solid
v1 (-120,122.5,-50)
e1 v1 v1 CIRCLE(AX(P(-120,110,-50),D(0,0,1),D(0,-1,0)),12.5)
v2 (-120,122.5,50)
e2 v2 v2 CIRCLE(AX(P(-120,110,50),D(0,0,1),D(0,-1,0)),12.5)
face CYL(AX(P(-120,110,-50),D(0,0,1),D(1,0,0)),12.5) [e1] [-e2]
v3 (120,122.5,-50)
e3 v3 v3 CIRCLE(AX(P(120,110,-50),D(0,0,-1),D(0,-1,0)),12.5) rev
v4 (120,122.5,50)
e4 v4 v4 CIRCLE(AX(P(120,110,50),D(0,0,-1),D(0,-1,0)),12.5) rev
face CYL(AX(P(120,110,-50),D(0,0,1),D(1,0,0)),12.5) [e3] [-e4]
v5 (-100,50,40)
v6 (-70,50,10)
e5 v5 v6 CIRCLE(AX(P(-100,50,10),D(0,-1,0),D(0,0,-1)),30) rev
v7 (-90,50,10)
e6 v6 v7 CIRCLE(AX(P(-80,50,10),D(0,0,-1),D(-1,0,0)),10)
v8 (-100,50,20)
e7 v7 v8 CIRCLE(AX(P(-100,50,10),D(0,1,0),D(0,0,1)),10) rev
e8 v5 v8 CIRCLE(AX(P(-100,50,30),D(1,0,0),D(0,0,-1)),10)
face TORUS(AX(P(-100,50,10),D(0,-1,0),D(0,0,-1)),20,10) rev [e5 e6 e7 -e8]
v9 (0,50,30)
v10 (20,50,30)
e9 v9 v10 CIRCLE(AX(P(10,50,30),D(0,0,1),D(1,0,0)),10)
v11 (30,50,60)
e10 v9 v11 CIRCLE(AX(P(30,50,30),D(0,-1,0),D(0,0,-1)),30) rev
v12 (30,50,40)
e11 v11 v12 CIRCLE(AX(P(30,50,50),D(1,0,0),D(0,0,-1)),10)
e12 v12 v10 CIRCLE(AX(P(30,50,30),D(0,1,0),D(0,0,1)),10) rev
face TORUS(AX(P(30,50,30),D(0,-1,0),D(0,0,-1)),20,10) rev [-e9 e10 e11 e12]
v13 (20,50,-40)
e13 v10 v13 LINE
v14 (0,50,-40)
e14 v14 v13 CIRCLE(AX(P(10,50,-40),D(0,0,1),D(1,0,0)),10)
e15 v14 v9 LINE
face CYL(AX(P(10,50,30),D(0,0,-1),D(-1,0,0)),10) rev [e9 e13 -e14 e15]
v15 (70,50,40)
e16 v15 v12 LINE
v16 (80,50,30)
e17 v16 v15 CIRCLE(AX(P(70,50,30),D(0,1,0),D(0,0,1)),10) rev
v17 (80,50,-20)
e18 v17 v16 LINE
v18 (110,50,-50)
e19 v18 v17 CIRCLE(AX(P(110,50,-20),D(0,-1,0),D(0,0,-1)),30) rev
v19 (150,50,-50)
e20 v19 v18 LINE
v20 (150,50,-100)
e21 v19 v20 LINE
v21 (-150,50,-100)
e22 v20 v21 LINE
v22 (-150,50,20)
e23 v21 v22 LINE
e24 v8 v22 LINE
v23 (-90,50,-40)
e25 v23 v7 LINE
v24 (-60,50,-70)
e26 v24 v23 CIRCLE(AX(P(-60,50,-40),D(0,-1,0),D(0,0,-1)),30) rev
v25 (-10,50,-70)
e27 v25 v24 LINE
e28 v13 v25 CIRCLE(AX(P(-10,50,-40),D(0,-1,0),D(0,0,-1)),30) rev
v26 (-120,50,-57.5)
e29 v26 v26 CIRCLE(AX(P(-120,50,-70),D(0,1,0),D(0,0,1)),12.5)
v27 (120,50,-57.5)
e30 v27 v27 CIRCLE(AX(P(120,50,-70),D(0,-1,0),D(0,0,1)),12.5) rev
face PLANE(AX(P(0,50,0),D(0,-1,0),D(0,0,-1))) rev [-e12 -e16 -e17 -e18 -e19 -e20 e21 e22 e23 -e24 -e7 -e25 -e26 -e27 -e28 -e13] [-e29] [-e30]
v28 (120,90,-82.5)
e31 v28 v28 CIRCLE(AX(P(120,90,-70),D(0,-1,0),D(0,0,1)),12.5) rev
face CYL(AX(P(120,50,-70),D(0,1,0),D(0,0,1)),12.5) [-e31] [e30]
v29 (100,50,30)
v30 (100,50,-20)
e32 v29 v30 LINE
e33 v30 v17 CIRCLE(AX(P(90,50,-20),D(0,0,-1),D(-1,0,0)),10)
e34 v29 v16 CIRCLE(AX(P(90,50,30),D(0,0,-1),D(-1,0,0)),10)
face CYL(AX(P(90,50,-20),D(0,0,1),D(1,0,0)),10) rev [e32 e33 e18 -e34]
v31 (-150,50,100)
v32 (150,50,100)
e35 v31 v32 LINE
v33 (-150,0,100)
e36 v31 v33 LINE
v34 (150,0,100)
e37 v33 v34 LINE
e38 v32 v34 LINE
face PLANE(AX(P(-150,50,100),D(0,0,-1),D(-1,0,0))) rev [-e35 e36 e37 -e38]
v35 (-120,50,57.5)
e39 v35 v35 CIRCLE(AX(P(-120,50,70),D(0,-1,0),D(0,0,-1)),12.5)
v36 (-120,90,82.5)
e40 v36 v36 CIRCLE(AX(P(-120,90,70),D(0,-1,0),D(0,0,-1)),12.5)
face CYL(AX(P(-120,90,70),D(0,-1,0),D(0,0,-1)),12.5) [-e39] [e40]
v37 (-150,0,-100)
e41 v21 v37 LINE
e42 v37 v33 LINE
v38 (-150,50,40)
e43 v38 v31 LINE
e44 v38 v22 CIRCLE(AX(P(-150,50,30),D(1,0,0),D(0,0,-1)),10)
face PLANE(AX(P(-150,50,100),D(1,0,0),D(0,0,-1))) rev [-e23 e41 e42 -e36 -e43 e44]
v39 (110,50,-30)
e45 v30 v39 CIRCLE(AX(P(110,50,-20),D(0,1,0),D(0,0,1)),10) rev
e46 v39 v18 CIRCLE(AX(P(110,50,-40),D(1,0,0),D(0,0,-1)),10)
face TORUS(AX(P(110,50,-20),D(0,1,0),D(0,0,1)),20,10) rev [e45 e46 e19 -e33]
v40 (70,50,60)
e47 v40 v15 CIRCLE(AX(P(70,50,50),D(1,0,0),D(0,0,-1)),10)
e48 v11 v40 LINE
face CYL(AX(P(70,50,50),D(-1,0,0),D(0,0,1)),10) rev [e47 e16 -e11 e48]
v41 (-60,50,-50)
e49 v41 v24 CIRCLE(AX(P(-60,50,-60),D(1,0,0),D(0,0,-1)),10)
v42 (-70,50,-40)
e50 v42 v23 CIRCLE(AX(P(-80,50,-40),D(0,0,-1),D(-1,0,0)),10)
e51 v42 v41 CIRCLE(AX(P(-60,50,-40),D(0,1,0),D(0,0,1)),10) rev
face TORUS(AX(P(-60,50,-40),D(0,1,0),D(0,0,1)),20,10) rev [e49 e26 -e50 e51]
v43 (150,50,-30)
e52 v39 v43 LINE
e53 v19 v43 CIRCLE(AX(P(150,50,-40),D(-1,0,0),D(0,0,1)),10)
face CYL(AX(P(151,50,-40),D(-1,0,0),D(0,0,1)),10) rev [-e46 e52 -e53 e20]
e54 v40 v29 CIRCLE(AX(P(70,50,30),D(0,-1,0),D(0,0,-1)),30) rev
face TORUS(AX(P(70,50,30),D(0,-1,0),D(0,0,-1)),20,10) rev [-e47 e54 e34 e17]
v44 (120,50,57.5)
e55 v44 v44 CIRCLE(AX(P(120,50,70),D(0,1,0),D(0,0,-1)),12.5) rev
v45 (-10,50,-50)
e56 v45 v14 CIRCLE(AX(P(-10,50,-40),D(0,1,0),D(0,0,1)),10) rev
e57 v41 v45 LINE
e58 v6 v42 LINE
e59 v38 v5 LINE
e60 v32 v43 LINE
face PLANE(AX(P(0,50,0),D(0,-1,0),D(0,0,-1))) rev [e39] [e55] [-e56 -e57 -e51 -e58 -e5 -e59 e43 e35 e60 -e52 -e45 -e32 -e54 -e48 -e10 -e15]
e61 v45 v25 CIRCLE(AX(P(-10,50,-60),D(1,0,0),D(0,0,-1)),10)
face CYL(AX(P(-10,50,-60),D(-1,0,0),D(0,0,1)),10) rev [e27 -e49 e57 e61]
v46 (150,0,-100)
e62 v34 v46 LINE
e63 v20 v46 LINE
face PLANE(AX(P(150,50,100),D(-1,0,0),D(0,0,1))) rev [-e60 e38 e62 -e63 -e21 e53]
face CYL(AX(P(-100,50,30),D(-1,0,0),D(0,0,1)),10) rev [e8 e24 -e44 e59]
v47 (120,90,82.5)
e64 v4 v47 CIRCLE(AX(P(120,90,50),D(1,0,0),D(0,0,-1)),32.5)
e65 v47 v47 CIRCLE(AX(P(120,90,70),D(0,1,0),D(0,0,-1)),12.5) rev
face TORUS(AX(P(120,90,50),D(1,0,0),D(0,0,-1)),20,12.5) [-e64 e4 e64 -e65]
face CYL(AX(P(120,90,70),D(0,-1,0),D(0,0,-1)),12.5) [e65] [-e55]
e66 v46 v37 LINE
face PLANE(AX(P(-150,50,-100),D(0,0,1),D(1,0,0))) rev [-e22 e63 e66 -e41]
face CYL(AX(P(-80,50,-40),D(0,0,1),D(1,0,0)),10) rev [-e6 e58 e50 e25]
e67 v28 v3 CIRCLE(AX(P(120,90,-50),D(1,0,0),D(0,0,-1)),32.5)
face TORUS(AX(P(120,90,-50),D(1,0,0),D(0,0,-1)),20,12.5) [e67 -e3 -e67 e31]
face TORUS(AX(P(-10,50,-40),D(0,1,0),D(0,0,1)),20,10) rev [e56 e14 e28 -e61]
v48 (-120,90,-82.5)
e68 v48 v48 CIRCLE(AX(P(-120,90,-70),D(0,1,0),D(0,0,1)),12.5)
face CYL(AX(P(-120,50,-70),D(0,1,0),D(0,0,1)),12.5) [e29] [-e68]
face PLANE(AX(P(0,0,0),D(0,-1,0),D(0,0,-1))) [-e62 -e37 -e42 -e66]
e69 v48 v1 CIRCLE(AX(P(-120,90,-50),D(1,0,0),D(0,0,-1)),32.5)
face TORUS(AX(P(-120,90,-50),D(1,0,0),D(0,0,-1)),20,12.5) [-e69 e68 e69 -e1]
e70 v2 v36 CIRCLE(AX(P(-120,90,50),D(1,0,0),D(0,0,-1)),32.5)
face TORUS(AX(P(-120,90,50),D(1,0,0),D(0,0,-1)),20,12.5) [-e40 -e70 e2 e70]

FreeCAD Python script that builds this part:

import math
import FreeCAD as App
import Part
import Sketcher

doc = App.newDocument("Part")
body = doc.addObject("PartDesign::Body", "Body")

sketch1 = body.newObject("Sketcher::SketchObject", "Sketch")
sketch1.AttachmentSupport = (doc.getObject("XZ_Plane"), [""])
sketch1.MapMode = "FlatFace"
sketch1.addGeometry(Part.LineSegment(App.Vector(-150, -100, 0), App.Vector(-150, 100, 0)), False)
sketch1.addGeometry(Part.LineSegment(App.Vector(-150, 100, 0), App.Vector(150, 100, 0)), False)
sketch1.addGeometry(Part.LineSegment(App.Vector(150, 100, 0), App.Vector(150, -100, 0)), False)
sketch1.addGeometry(Part.LineSegment(App.Vector(150, -100, 0), App.Vector(-150, -100, 0)), False)
sketch1.addConstraint(Sketcher.Constraint("Coincident", 0, 2, 1, 1))
sketch1.addConstraint(Sketcher.Constraint("Coincident", 1, 2, 2, 1))
sketch1.addConstraint(Sketcher.Constraint("Coincident", 2, 2, 3, 1))
sketch1.addConstraint(Sketcher.Constraint("Coincident", 3, 2, 0, 1))
sketch1.addConstraint(Sketcher.Constraint("Vertical", 0))
sketch1.addConstraint(Sketcher.Constraint("Horizontal", 1))
sketch1.addConstraint(Sketcher.Constraint("Vertical", 2))
sketch1.addConstraint(Sketcher.Constraint("Horizontal", 3))
sketch1.addConstraint(Sketcher.Constraint("Symmetric", 0, 2, 2, 2, -1, 1))
sketch1.addConstraint(Sketcher.Constraint("DistanceX", 1, 1, 1, 2, 300.0))
sketch1.addConstraint(Sketcher.Constraint("DistanceY", 0, 1, 0, 2, 200.0))
pad1 = body.newObject("PartDesign::Pad", "Pad")
pad1.Profile = sketch1
pad1.Length = 50
pad1.Reversed = True

sketch2 = body.newObject("Sketcher::SketchObject", "Sketch001")
sketch2.AttachmentSupport = (doc.getObject("YZ_Plane"), [""])
sketch2.MapMode = "FlatFace"
sketch2.AttachmentOffset = App.Placement(App.Vector(0, 0, 150), App.Rotation())
sketch2.addGeometry(Part.Circle(App.Vector(50, -40, 0), App.Vector(0, 0, 1), 10), False)
sketch2.addConstraint(Sketcher.Constraint("Diameter", 0, 20.0))
sketch2.addConstraint(Sketcher.Constraint("DistanceX", -1, 1, 0, 3, 50.0))
sketch2.addConstraint(Sketcher.Constraint("DistanceY", 0, 3, -1, 1, 40.0))

sketch3 = body.newObject("Sketcher::SketchObject", "Sketch002")
sketch3.AttachmentSupport = (doc.getObject("XZ_Plane"), [""])
sketch3.MapMode = "FlatFace"
sketch3.AttachmentOffset = App.Placement(App.Vector(0, 0, -50), App.Rotation())
sketch3.addGeometry(Part.LineSegment(App.Vector(150, -40, 0), App.Vector(110, -40, 0)), False)
sketch3.addGeometry(Part.ArcOfCircle(Part.Circle(App.Vector(110, -20, 0), App.Vector(0, 0, 1), 20), math.radians(180), math.radians(270)), False)
sketch3.addGeometry(Part.LineSegment(App.Vector(90, -20, 0), App.Vector(90, 30, 0)), False)
sketch3.addGeometry(Part.ArcOfCircle(Part.Circle(App.Vector(70, 30, 0), App.Vector(0, 0, 1), 20), math.radians(0), math.radians(90)), False)
sketch3.addGeometry(Part.LineSegment(App.Vector(70, 50, 0), App.Vector(30, 50, 0)), False)
sketch3.addGeometry(Part.ArcOfCircle(Part.Circle(App.Vector(30, 30, 0), App.Vector(0, 0, 1), 20), math.radians(90), math.radians(180)), False)
sketch3.addGeometry(Part.LineSegment(App.Vector(10, 30, 0), App.Vector(10, -40, 0)), False)
sketch3.addGeometry(Part.ArcOfCircle(Part.Circle(App.Vector(-10, -40, 0), App.Vector(0, 0, 1), 20), math.radians(-90), math.radians(0)), False)
sketch3.addGeometry(Part.LineSegment(App.Vector(-10, -60, 0), App.Vector(-60, -60, 0)), False)
sketch3.addGeometry(Part.ArcOfCircle(Part.Circle(App.Vector(-60, -40, 0), App.Vector(0, 0, 1), 20), math.radians(180), math.radians(270)), False)
sketch3.addGeometry(Part.LineSegment(App.Vector(-80, -40, 0), App.Vector(-80, 10, 0)), False)
sketch3.addGeometry(Part.ArcOfCircle(Part.Circle(App.Vector(-100, 10, 0), App.Vector(0, 0, 1), 20), math.radians(0), math.radians(90)), False)
sketch3.addGeometry(Part.LineSegment(App.Vector(-100, 30, 0), App.Vector(-150, 30, 0)), False)
sketch3.addConstraint(Sketcher.Constraint("Tangent", 0, 2, 1, 2))
sketch3.addConstraint(Sketcher.Constraint("Tangent", 1, 1, 2, 1))
sketch3.addConstraint(Sketcher.Constraint("Tangent", 2, 2, 3, 1))
sketch3.addConstraint(Sketcher.Constraint("Tangent", 3, 2, 4, 1))
sketch3.addConstraint(Sketcher.Constraint("Tangent", 4, 2, 5, 1))
sketch3.addConstraint(Sketcher.Constraint("Tangent", 5, 2, 6, 1))
sketch3.addConstraint(Sketcher.Constraint("Tangent", 6, 2, 7, 2))
sketch3.addConstraint(Sketcher.Constraint("Tangent", 7, 1, 8, 1))
sketch3.addConstraint(Sketcher.Constraint("Tangent", 8, 2, 9, 2))
sketch3.addConstraint(Sketcher.Constraint("Tangent", 9, 1, 10, 1))
sketch3.addConstraint(Sketcher.Constraint("Tangent", 10, 2, 11, 1))
sketch3.addConstraint(Sketcher.Constraint("Tangent", 11, 2, 12, 1))
sketch3.addConstraint(Sketcher.Constraint("Horizontal", 0))
sketch3.addConstraint(Sketcher.Constraint("Vertical", 2))
sketch3.addConstraint(Sketcher.Constraint("Horizontal", 4))
sketch3.addConstraint(Sketcher.Constraint("Vertical", 6))
sketch3.addConstraint(Sketcher.Constraint("Horizontal", 8))
sketch3.addConstraint(Sketcher.Constraint("Vertical", 10))
sketch3.addConstraint(Sketcher.Constraint("Horizontal", 12))
sketch3.addConstraint(Sketcher.Constraint("Equal", 1, 3))
sketch3.addConstraint(Sketcher.Constraint("Equal", 3, 5))
sketch3.addConstraint(Sketcher.Constraint("Equal", 5, 7))
sketch3.addConstraint(Sketcher.Constraint("Equal", 7, 9))
sketch3.addConstraint(Sketcher.Constraint("Equal", 9, 11))
sketch3.addConstraint(Sketcher.Constraint("Horizontal", 9, 3, 0, 1))
sketch3.addConstraint(Sketcher.Constraint("Horizontal", 5, 2, 11, 2))
sketch3.addConstraint(Sketcher.Constraint("Equal", 0, 4))
sketch3.addConstraint(Sketcher.Constraint("Equal", 8, 12))
sketch3.addConstraint(Sketcher.Constraint("Equal", 12, 2))
sketch3.addConstraint(Sketcher.Constraint("Radius", 1, 20.0))
sketch3.addConstraint(Sketcher.Constraint("DistanceX", 0, 2, 0, 1, 40.0))
sketch3.addConstraint(Sketcher.Constraint("DistanceX", 8, 2, 8, 1, 50.0))
sketch3.addConstraint(Sketcher.Constraint("DistanceX", -1, 1, 1, 3, 110.0))
sketch3.addConstraint(Sketcher.Constraint("DistanceY", 1, 3, -1, 1, 20.0))
doc.recompute()

subtractivepipe = body.newObject("PartDesign::SubtractivePipe", "SubtractivePipe")
subtractivepipe.Profile = sketch2
subtractivepipe.Spine = (sketch3, ["Edge1", "Edge2", "Edge3", "Edge4", "Edge5", "Edge6", "Edge7", "Edge8", "Edge9", "Edge10", "Edge11", "Edge12", "Edge13"])

sketch4 = body.newObject("Sketcher::SketchObject", "Sketch003")
sketch4.AttachmentSupport = (doc.getObject("XZ_Plane"), [""])
sketch4.MapMode = "FlatFace"
sketch4.AttachmentOffset = App.Placement(App.Vector(0, 0, -50), App.Rotation())
sketch4.addGeometry(Part.Circle(App.Vector(-120, -70, 0), App.Vector(0, 0, 1), 12), False)
sketch4.addConstraint(Sketcher.Constraint("Diameter", 0, 25.0))
sketch4.addConstraint(Sketcher.Constraint("DistanceX", 0, 3, -1, 1, 120.0))
sketch4.addConstraint(Sketcher.Constraint("DistanceY", 0, 3, -1, 1, 70.0))

sketch5 = body.newObject("Sketcher::SketchObject", "Sketch004")
sketch5.AttachmentSupport = (doc.getObject("YZ_Plane"), [""])
sketch5.MapMode = "FlatFace"
sketch5.AttachmentOffset = App.Placement(App.Vector(0, 0, -120), App.Rotation())
sketch5.addGeometry(Part.LineSegment(App.Vector(50, -70, 0), App.Vector(90, -70, 0)), False)
sketch5.addGeometry(Part.ArcOfCircle(Part.Circle(App.Vector(90, -50, 0), App.Vector(0, 0, 1), 20), math.radians(-90), math.radians(0)), False)
sketch5.addGeometry(Part.LineSegment(App.Vector(110, -50, 0), App.Vector(110, 50, 0)), False)
sketch5.addGeometry(Part.ArcOfCircle(Part.Circle(App.Vector(90, 50, 0), App.Vector(0, 0, 1), 20), math.radians(0), math.radians(90)), False)
sketch5.addGeometry(Part.LineSegment(App.Vector(90, 70, 0), App.Vector(50, 70, 0)), False)
sketch5.addConstraint(Sketcher.Constraint("Tangent", 0, 2, 1, 1))
sketch5.addConstraint(Sketcher.Constraint("Tangent", 1, 2, 2, 1))
sketch5.addConstraint(Sketcher.Constraint("Tangent", 2, 2, 3, 1))
sketch5.addConstraint(Sketcher.Constraint("Tangent", 3, 2, 4, 1))
sketch5.addConstraint(Sketcher.Constraint("Horizontal", 0))
sketch5.addConstraint(Sketcher.Constraint("Vertical", 2))
sketch5.addConstraint(Sketcher.Constraint("Horizontal", 4))
sketch5.addConstraint(Sketcher.Constraint("Equal", 1, 3))
sketch5.addConstraint(Sketcher.Constraint("Symmetric", 0, 1, 4, 2, -1))
sketch5.addConstraint(Sketcher.Constraint("Radius", 1, 20.0))
sketch5.addConstraint(Sketcher.Constraint("DistanceX", 0, 1, 0, 2, 40.0))
sketch5.addConstraint(Sketcher.Constraint("DistanceY", 2, 1, 2, 2, 100.0))
sketch5.addConstraint(Sketcher.Constraint("DistanceX", -1, 1, 1, 3, 90.0))
doc.recompute()

additivepipe = body.newObject("PartDesign::AdditivePipe", "AdditivePipe")
additivepipe.Profile = sketch4
additivepipe.Spine = (sketch5, ["Edge1", "Edge2", "Edge3", "Edge4", "Edge5"])
doc.recompute()

mirrored = body.newObject("PartDesign::Mirrored", "Mirrored")
mirrored.Originals = [additivepipe]
mirrored.MirrorPlane = (doc.getObject("YZ_Plane"), [""])
body.Tip = mirrored

doc.recompute()
